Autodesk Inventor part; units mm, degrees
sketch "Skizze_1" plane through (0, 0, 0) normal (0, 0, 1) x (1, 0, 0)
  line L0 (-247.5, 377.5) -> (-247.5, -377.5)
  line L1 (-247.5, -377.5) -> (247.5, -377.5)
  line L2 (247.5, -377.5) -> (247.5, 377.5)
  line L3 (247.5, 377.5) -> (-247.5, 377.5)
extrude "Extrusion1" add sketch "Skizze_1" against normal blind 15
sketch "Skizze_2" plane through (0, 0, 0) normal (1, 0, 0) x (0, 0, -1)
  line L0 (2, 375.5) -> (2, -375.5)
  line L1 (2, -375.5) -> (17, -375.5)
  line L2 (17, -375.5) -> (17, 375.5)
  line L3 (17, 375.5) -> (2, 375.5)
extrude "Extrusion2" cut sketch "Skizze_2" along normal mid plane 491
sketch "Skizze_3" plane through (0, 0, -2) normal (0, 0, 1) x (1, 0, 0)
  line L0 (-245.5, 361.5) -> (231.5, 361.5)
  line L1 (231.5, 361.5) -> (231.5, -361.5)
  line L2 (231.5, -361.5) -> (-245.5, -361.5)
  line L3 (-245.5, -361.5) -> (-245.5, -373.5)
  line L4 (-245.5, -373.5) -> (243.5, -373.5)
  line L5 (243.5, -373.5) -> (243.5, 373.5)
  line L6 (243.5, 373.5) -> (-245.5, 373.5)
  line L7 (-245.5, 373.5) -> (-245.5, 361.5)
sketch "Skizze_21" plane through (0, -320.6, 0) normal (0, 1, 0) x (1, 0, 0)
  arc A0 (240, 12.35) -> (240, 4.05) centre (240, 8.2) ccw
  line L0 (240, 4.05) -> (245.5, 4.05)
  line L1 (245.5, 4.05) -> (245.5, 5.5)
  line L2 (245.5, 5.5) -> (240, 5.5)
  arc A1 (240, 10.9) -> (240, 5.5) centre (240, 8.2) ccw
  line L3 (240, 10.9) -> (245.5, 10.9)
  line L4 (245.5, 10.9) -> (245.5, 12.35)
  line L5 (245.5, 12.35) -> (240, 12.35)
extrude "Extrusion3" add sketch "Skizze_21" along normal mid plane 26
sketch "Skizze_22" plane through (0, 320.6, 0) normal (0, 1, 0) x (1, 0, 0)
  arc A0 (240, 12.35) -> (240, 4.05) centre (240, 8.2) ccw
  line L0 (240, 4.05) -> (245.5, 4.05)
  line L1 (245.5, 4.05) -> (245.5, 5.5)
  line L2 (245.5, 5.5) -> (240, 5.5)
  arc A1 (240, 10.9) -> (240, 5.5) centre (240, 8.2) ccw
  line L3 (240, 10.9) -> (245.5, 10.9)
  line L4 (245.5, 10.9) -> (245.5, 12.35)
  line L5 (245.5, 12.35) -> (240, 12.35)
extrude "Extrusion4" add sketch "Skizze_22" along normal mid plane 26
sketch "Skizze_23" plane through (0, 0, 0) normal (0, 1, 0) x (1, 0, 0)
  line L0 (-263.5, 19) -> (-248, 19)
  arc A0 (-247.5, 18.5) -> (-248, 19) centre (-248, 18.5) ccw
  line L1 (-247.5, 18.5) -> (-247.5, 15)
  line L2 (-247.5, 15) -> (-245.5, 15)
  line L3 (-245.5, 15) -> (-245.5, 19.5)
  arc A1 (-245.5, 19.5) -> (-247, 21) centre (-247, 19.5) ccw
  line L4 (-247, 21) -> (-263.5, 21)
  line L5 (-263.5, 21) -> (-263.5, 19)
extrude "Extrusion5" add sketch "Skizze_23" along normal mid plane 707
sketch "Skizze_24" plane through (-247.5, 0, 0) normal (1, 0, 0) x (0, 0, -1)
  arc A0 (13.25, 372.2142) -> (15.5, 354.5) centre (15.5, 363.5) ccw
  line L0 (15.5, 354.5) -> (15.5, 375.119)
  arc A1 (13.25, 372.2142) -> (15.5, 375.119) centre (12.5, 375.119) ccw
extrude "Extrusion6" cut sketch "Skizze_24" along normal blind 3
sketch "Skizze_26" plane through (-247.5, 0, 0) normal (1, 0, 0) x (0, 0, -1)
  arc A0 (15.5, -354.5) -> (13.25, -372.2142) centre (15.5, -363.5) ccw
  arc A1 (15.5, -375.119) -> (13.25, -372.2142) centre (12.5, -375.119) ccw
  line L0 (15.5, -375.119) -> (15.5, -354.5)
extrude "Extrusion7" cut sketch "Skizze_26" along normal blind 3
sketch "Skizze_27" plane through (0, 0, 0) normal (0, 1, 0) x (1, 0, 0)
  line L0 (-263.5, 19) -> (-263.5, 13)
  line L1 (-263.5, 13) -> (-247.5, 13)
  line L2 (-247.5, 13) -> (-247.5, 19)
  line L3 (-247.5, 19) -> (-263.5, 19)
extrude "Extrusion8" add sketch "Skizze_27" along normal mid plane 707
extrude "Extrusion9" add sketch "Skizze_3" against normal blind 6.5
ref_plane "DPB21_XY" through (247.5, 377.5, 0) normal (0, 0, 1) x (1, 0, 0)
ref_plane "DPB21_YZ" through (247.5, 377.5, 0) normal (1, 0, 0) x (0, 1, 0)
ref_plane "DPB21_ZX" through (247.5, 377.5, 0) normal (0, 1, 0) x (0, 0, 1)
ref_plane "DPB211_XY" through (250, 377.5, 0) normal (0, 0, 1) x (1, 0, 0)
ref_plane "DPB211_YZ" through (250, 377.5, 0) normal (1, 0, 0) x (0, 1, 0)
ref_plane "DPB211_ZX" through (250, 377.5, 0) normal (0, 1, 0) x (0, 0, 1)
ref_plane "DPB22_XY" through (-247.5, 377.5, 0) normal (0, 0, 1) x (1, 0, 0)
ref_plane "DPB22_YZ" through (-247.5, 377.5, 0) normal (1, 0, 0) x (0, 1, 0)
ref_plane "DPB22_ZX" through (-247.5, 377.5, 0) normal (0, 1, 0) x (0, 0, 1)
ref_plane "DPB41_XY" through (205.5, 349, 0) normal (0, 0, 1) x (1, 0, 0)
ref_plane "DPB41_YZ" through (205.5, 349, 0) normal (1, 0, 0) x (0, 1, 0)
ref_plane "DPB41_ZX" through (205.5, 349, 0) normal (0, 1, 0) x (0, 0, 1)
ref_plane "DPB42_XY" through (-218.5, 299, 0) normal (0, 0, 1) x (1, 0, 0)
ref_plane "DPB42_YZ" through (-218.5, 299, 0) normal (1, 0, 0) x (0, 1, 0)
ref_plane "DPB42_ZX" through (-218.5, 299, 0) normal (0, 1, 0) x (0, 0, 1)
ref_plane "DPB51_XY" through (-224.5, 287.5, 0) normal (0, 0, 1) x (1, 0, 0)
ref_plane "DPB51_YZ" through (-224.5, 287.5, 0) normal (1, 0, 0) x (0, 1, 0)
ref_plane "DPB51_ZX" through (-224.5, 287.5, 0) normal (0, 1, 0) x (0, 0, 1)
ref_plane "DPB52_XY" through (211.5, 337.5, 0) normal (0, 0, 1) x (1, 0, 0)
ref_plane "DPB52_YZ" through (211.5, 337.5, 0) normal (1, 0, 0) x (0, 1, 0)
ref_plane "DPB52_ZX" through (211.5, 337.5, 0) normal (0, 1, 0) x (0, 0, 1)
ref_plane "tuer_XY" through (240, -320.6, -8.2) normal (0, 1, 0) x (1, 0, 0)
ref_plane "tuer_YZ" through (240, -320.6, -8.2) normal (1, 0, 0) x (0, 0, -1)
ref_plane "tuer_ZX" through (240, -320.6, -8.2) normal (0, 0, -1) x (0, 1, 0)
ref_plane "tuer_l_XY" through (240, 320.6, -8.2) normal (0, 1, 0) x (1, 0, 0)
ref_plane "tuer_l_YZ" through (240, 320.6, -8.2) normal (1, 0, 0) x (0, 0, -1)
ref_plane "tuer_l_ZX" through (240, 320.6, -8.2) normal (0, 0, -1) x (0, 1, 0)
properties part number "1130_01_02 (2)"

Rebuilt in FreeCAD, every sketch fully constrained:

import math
import FreeCAD as App
import Part
import Sketcher
from FreeCAD import Vector
Q = App.Units.Quantity

doc = App.newDocument("Part")
body = doc.addObject("PartDesign::Body", "Body")

sketch1 = body.newObject("Sketcher::SketchObject", "Sketch")
sketch1.AttachmentSupport = (doc.getObject("XY_Plane"), [""])
sketch1.MapMode = "FlatFace"
sketch1.addGeometry([
    Part.LineSegment(Vector(248, 378, 0), Vector(-248, 378, 0)),
    Part.LineSegment(Vector(-248, 378, 0), Vector(-248, -378, 0)),
    Part.LineSegment(Vector(-248, -378, 0), Vector(248, -378, 0)),
    Part.LineSegment(Vector(248, -378, 0), Vector(248, 378, 0)),
], False)
sketch1.addConstraint([
    Sketcher.Constraint("Coincident", 0, 2, 1, 1),
    Sketcher.Constraint("Coincident", 1, 2, 2, 1),
    Sketcher.Constraint("Coincident", 2, 2, 3, 1),
    Sketcher.Constraint("Coincident", 3, 2, 0, 1),
    Sketcher.Constraint("Horizontal", 0),
    Sketcher.Constraint("Vertical", 1),
    Sketcher.Constraint("Horizontal", 2),
    Sketcher.Constraint("Vertical", 3),
    Sketcher.Constraint("Symmetric", 0, 2, 2, 2, -1, 1),
    Sketcher.Constraint("DistanceX", 0, 2, 0, 1, Q("495 mm")),
    Sketcher.Constraint("DistanceY", 1, 2, 1, 1, Q("755 mm")),
])
pad1 = body.newObject("PartDesign::Pad", "Pad")
pad1.Profile = sketch1
pad1.Length = 15
pad1.Reversed = True

sketch2 = body.newObject("Sketcher::SketchObject", "Sketch001")
sketch2.AttachmentSupport = (doc.getObject("YZ_Plane"), [""])
sketch2.MapMode = "FlatFace"
sketch2.addGeometry([
    Part.LineSegment(Vector(376, -17, 0), Vector(376, -2, 0)),
    Part.LineSegment(Vector(376, -2, 0), Vector(-376, -2, 0)),
    Part.LineSegment(Vector(-376, -2, 0), Vector(-376, -17, 0)),
    Part.LineSegment(Vector(-376, -17, 0), Vector(376, -17, 0)),
], False)
sketch2.addConstraint([
    Sketcher.Constraint("Coincident", 0, 2, 1, 1),
    Sketcher.Constraint("Coincident", 1, 2, 2, 1),
    Sketcher.Constraint("Coincident", 2, 2, 3, 1),
    Sketcher.Constraint("Coincident", 3, 2, 0, 1),
    Sketcher.Constraint("Vertical", 0),
    Sketcher.Constraint("Horizontal", 1),
    Sketcher.Constraint("Vertical", 2),
    Sketcher.Constraint("Horizontal", 3),
    Sketcher.Constraint("DistanceX", 1, 2, 1, 1, Q("751 mm")),
    Sketcher.Constraint("DistanceY", 0, 1, 0, 2, Q("15 mm")),
    Sketcher.Constraint("DistanceY", 0, 2, -1, 1, Q("2 mm")),
    Sketcher.Constraint("DistanceX", -1, 1, 0, 2, Q("375.5 mm")),
])
pocket1 = body.newObject("PartDesign::Pocket", "Pocket")
pocket1.Profile = sketch2
pocket1.Length = 491
pocket1.Midplane = True

sketch3 = body.newObject("Sketcher::SketchObject", "Sketch002")
sketch3.AttachmentSupport = (doc.getObject("XZ_Plane"), [""])
sketch3.MapMode = "FlatFace"
sketch3.AttachmentOffset = App.Placement(Vector(0, 0, 320.6), App.Rotation())
sketch3.addGeometry([
    Part.LineSegment(Vector(245.5, -12.3, 0), Vector(240, -12.3, 0)),
    Part.ArcOfCircle(Part.Circle(Vector(240, -8.2, 0), Vector(0, 0, 1), 4.2), math.radians(90), math.radians(270)),
    Part.LineSegment(Vector(240, -4, 0), Vector(245.5, -4, 0)),
    Part.LineSegment(Vector(245.5, -4, 0), Vector(245.5, -5.5, 0)),
    Part.LineSegment(Vector(245.5, -5.5, 0), Vector(240, -5.5, 0)),
    Part.ArcOfCircle(Part.Circle(Vector(240, -8.2, 0), Vector(0, 0, 1), 2.7), math.radians(90), math.radians(270)),
    Part.LineSegment(Vector(240, -10.9, 0), Vector(245.5, -10.9, 0)),
    Part.LineSegment(Vector(245.5, -10.9, 0), Vector(245.5, -12.3, 0)),
], False)
sketch3.addConstraint([
    Sketcher.Constraint("Tangent", 0, 2, 1, 2),
    Sketcher.Constraint("Tangent", 1, 1, 2, 1),
    Sketcher.Constraint("Coincident", 2, 2, 3, 1),
    Sketcher.Constraint("Coincident", 3, 2, 4, 1),
    Sketcher.Constraint("Tangent", 4, 2, 5, 1),
    Sketcher.Constraint("Tangent", 5, 2, 6, 1),
    Sketcher.Constraint("Coincident", 6, 2, 7, 1),
    Sketcher.Constraint("Coincident", 7, 2, 0, 1),
    Sketcher.Constraint("Horizontal", 0),
    Sketcher.Constraint("Horizontal", 2),
    Sketcher.Constraint("Vertical", 3),
    Sketcher.Constraint("Horizontal", 4),
    Sketcher.Constraint("Horizontal", 6),
    Sketcher.Constraint("Vertical", 7),
    Sketcher.Constraint("Coincident", 5, 3, 1, 3),
    Sketcher.Constraint("Vertical", 3, 2, 6, 2),
    Sketcher.Constraint("Radius", 5, Q("2.7 mm")),
    Sketcher.Constraint("Radius", 1, Q("4.15 mm")),
    Sketcher.Constraint("DistanceX", 0, 2, 0, 1, Q("5.5 mm")),
    Sketcher.Constraint("DistanceX", -1, 1, 1, 3, Q("240 mm")),
    Sketcher.Constraint("DistanceY", 1, 3, -1, 1, Q("8.2 mm")),
])
pad2 = body.newObject("PartDesign::Pad", "Pad001")
pad2.Profile = sketch3
pad2.Length = 26
pad2.Midplane = True

sketch4 = body.newObject("Sketcher::SketchObject", "Sketch003")
sketch4.AttachmentSupport = (doc.getObject("XZ_Plane"), [""])
sketch4.MapMode = "FlatFace"
sketch4.AttachmentOffset = App.Placement(Vector(0, 0, -320.6), App.Rotation())
sketch4.addGeometry([
    Part.LineSegment(Vector(245.5, -12.3, 0), Vector(240, -12.3, 0)),
    Part.ArcOfCircle(Part.Circle(Vector(240, -8.2, 0), Vector(0, 0, 1), 4.2), math.radians(90), math.radians(270)),
    Part.LineSegment(Vector(240, -4, 0), Vector(245.5, -4, 0)),
    Part.LineSegment(Vector(245.5, -4, 0), Vector(245.5, -5.5, 0)),
    Part.LineSegment(Vector(245.5, -5.5, 0), Vector(240, -5.5, 0)),
    Part.ArcOfCircle(Part.Circle(Vector(240, -8.2, 0), Vector(0, 0, 1), 2.7), math.radians(90), math.radians(270)),
    Part.LineSegment(Vector(240, -10.9, 0), Vector(245.5, -10.9, 0)),
    Part.LineSegment(Vector(245.5, -10.9, 0), Vector(245.5, -12.3, 0)),
], False)
sketch4.addConstraint([
    Sketcher.Constraint("Tangent", 0, 2, 1, 2),
    Sketcher.Constraint("Tangent", 1, 1, 2, 1),
    Sketcher.Constraint("Coincident", 2, 2, 3, 1),
    Sketcher.Constraint("Coincident", 3, 2, 4, 1),
    Sketcher.Constraint("Tangent", 4, 2, 5, 1),
    Sketcher.Constraint("Tangent", 5, 2, 6, 1),
    Sketcher.Constraint("Coincident", 6, 2, 7, 1),
    Sketcher.Constraint("Coincident", 7, 2, 0, 1),
    Sketcher.Constraint("Horizontal", 0),
    Sketcher.Constraint("Horizontal", 2),
    Sketcher.Constraint("Vertical", 3),
    Sketcher.Constraint("Horizontal", 4),
    Sketcher.Constraint("Horizontal", 6),
    Sketcher.Constraint("Vertical", 7),
    Sketcher.Constraint("Coincident", 5, 3, 1, 3),
    Sketcher.Constraint("Vertical", 3, 2, 6, 2),
    Sketcher.Constraint("Radius", 5, Q("2.7 mm")),
    Sketcher.Constraint("Radius", 1, Q("4.15 mm")),
    Sketcher.Constraint("DistanceX", 0, 2, 0, 1, Q("5.5 mm")),
    Sketcher.Constraint("DistanceX", -1, 1, 1, 3, Q("240 mm")),
    Sketcher.Constraint("DistanceY", 1, 3, -1, 1, Q("8.2 mm")),
])
pad3 = body.newObject("PartDesign::Pad", "Pad002")
pad3.Profile = sketch4
pad3.Length = 26
pad3.Midplane = True

sketch5 = body.newObject("Sketcher::SketchObject", "Sketch004")
sketch5.AttachmentSupport = (doc.getObject("XZ_Plane"), [""])
sketch5.MapMode = "FlatFace"
sketch5.addGeometry([
    Part.LineSegment(Vector(-263.5, -21, 0), Vector(-263.5, -19, 0)),
    Part.LineSegment(Vector(-263.5, -19, 0), Vector(-248, -19, 0)),
    Part.ArcOfCircle(Part.Circle(Vector(-248, -18.5, 0), Vector(0, 0, 1), 0.5), math.radians(-90), math.radians(0)),
    Part.LineSegment(Vector(-247.5, -18.5, 0), Vector(-247.5, -15, 0)),
    Part.LineSegment(Vector(-247.5, -15, 0), Vector(-245.5, -15, 0)),
    Part.LineSegment(Vector(-245.5, -15, 0), Vector(-245.5, -19.5, 0)),
    Part.ArcOfCircle(Part.Circle(Vector(-247, -19.5, 0), Vector(0, 0, 1), 1.5), math.radians(-90), math.radians(0)),
    Part.LineSegment(Vector(-247, -21, 0), Vector(-263.5, -21, 0)),
], False)
sketch5.addConstraint([
    Sketcher.Constraint("Coincident", 0, 2, 1, 1),
    Sketcher.Constraint("Tangent", 1, 2, 2, 1),
    Sketcher.Constraint("Tangent", 2, 2, 3, 1),
    Sketcher.Constraint("Coincident", 3, 2, 4, 1),
    Sketcher.Constraint("Coincident", 4, 2, 5, 1),
    Sketcher.Constraint("Tangent", 5, 2, 6, 2),
    Sketcher.Constraint("Tangent", 6, 1, 7, 1),
    Sketcher.Constraint("Coincident", 7, 2, 0, 1),
    Sketcher.Constraint("Vertical", 0),
    Sketcher.Constraint("Horizontal", 1),
    Sketcher.Constraint("Vertical", 3),
    Sketcher.Constraint("Horizontal", 4),
    Sketcher.Constraint("Vertical", 5),
    Sketcher.Constraint("Horizontal", 7),
    Sketcher.Constraint("Equal", 4, 0),
    Sketcher.Constraint("Radius", 2, Q("0.5 mm")),
    Sketcher.Constraint("Radius", 6, Q("1.5 mm")),
    Sketcher.Constraint("DistanceX", 4, 1, 4, 2, Q("2 mm")),
    Sketcher.Constraint("DistanceX", 1, 1, 1, 2, Q("15.5 mm")),
    Sketcher.Constraint("DistanceY", 3, 1, 3, 2, Q("3.5 mm")),
    Sketcher.Constraint("DistanceX", 2, 3, -1, 1, Q("248 mm")),
    Sketcher.Constraint("DistanceY", 0, 2, -1, 1, Q("19 mm")),
])
pad4 = body.newObject("PartDesign::Pad", "Pad003")
pad4.Profile = sketch5
pad4.Length = 707
pad4.Midplane = True

sketch6 = body.newObject("Sketcher::SketchObject", "Sketch005")
sketch6.AttachmentSupport = (doc.getObject("YZ_Plane"), [""])
sketch6.MapMode = "FlatFace"
sketch6.AttachmentOffset = App.Placement(Vector(0, 0, -247.5), App.Rotation())
sketch6.addGeometry([
    Part.ArcOfCircle(Part.Circle(Vector(375.1, -12.5, 0), Vector(0, 0, 1), 3), math.radians(-166), math.radians(-90)),
    Part.ArcOfCircle(Part.Circle(Vector(363.5, -15.5, 0), Vector(0, 0, 1), 9), math.radians(14), math.radians(180)),
    Part.LineSegment(Vector(354.5, -15.5, 0), Vector(375.1, -15.5, 0)),
], False)
sketch6.addConstraint([
    Sketcher.Constraint("Tangent", 0, 1, 1, 1),
    Sketcher.Constraint("Coincident", 1, 2, 2, 1),
    Sketcher.Constraint("Tangent", 2, 2, 0, 2),
    Sketcher.Constraint("Horizontal", 2),
    Sketcher.Constraint("Radius", 0, Q("3 mm")),
    Sketcher.Constraint("Radius", 1, Q("9 mm")),
    Sketcher.Constraint("DistanceY", 1, 3, 0, 3, Q("3 mm")),
    Sketcher.Constraint("DistanceY", 0, 3, -1, 1, Q("12.5 mm")),
    Sketcher.Constraint("DistanceX", -1, 1, 1, 3, Q("363.5 mm")),
])
pocket2 = body.newObject("PartDesign::Pocket", "Pocket001")
pocket2.Profile = sketch6
pocket2.Length = 3
pocket2.Reversed = True

sketch7 = body.newObject("Sketcher::SketchObject", "Sketch006")
sketch7.AttachmentSupport = (doc.getObject("YZ_Plane"), [""])
sketch7.MapMode = "FlatFace"
sketch7.AttachmentOffset = App.Placement(Vector(0, 0, -247.5), App.Rotation())
sketch7.addGeometry([
    Part.LineSegment(Vector(-375.1, -15.5, 0), Vector(-354.5, -15.5, 0)),
    Part.ArcOfCircle(Part.Circle(Vector(-363.5, -15.5, 0), Vector(0, 0, 1), 9), math.radians(0), math.radians(166)),
    Part.ArcOfCircle(Part.Circle(Vector(-375.1, -12.5, 0), Vector(0, 0, 1), 3), math.radians(-90), math.radians(-14)),
], False)
sketch7.addConstraint([
    Sketcher.Constraint("Coincident", 0, 2, 1, 1),
    Sketcher.Constraint("Tangent", 1, 2, 2, 2),
    Sketcher.Constraint("Tangent", 2, 1, 0, 1),
    Sketcher.Constraint("Horizontal", 0),
    Sketcher.Constraint("Horizontal", 1, 3, 0, 2),
    Sketcher.Constraint("Radius", 1, Q("9 mm")),
    Sketcher.Constraint("Radius", 2, Q("3 mm")),
    Sketcher.Constraint("DistanceX", 1, 3, -1, 1, Q("363.5 mm")),
    Sketcher.Constraint("DistanceY", 1, 3, -1, 1, Q("15.5 mm")),
])
pocket3 = body.newObject("PartDesign::Pocket", "Pocket002")
pocket3.Profile = sketch7
pocket3.Length = 3
pocket3.Reversed = True

sketch8 = body.newObject("Sketcher::SketchObject", "Sketch007")
sketch8.AttachmentSupport = (doc.getObject("XZ_Plane"), [""])
sketch8.MapMode = "FlatFace"
sketch8.addGeometry([
    Part.LineSegment(Vector(-248, -19, 0), Vector(-264, -19, 0)),
    Part.LineSegment(Vector(-264, -19, 0), Vector(-264, -13, 0)),
    Part.LineSegment(Vector(-264, -13, 0), Vector(-248, -13, 0)),
    Part.LineSegment(Vector(-248, -13, 0), Vector(-248, -19, 0)),
], False)
sketch8.addConstraint([
    Sketcher.Constraint("Coincident", 0, 2, 1, 1),
    Sketcher.Constraint("Coincident", 1, 2, 2, 1),
    Sketcher.Constraint("Coincident", 2, 2, 3, 1),
    Sketcher.Constraint("Coincident", 3, 2, 0, 1),
    Sketcher.Constraint("Horizontal", 0),
    Sketcher.Constraint("Vertical", 1),
    Sketcher.Constraint("Horizontal", 2),
    Sketcher.Constraint("Vertical", 3),
    Sketcher.Constraint("DistanceX", 0, 2, 0, 1, Q("16 mm")),
    Sketcher.Constraint("DistanceY", 1, 1, 1, 2, Q("6 mm")),
    Sketcher.Constraint("DistanceY", 0, 2, -1, 1, Q("19 mm")),
    Sketcher.Constraint("DistanceX", 0, 2, -1, 1, Q("263.5 mm")),
])
pad5 = body.newObject("PartDesign::Pad", "Pad004")
pad5.Profile = sketch8
pad5.Length = 707
pad5.Midplane = True

sketch9 = body.newObject("Sketcher::SketchObject", "Sketch008")
sketch9.AttachmentSupport = (doc.getObject("XY_Plane"), [""])
sketch9.MapMode = "FlatFace"
sketch9.AttachmentOffset = App.Placement(Vector(0, 0, -2), App.Rotation())
sketch9.addGeometry([
    Part.LineSegment(Vector(-246, 374, 0), Vector(-246, 362, 0)),
    Part.LineSegment(Vector(-246, 362, 0), Vector(232, 362, 0)),
    Part.LineSegment(Vector(232, 362, 0), Vector(232, -362, 0)),
    Part.LineSegment(Vector(232, -362, 0), Vector(-246, -362, 0)),
    Part.LineSegment(Vector(-246, -362, 0), Vector(-246, -374, 0)),
    Part.LineSegment(Vector(-246, -374, 0), Vector(244, -374, 0)),
    Part.LineSegment(Vector(244, -374, 0), Vector(244, 374, 0)),
    Part.LineSegment(Vector(244, 374, 0), Vector(-246, 374, 0)),
], False)
sketch9.addConstraint([
    Sketcher.Constraint("Coincident", 0, 2, 1, 1),
    Sketcher.Constraint("Coincident", 1, 2, 2, 1),
    Sketcher.Constraint("Coincident", 2, 2, 3, 1),
    Sketcher.Constraint("Coincident", 3, 2, 4, 1),
    Sketcher.Constraint("Coincident", 4, 2, 5, 1),
    Sketcher.Constraint("Coincident", 5, 2, 6, 1),
    Sketcher.Constraint("Coincident", 6, 2, 7, 1),
    Sketcher.Constraint("Coincident", 7, 2, 0, 1),
    Sketcher.Constraint("Vertical", 0),
    Sketcher.Constraint("Horizontal", 1),
    Sketcher.Constraint("Vertical", 2),
    Sketcher.Constraint("Horizontal", 3),
    Sketcher.Constraint("Vertical", 4),
    Sketcher.Constraint("Horizontal", 5),
    Sketcher.Constraint("Vertical", 6),
    Sketcher.Constraint("Horizontal", 7),
    Sketcher.Constraint("Symmetric", 0, 2, 3, 2, -1),
    Sketcher.Constraint("Equal", 0, 4),
    Sketcher.Constraint("DistanceX", 1, 1, 1, 2, Q("477 mm")),
    Sketcher.Constraint("DistanceX", 5, 1, 5, 2, Q("489 mm")),
    Sketcher.Constraint("DistanceY", 0, 2, 0, 1, Q("12 mm")),
    Sketcher.Constraint("DistanceY", 2, 2, 2, 1, Q("723 mm")),
    Sketcher.Constraint("DistanceX", 0, 2, -1, 1, Q("245.5 mm")),
])
pad6 = body.newObject("PartDesign::Pad", "Pad005")
pad6.Profile = sketch9
pad6.Length = 6.5
pad6.Reversed = True

doc.recompute()
